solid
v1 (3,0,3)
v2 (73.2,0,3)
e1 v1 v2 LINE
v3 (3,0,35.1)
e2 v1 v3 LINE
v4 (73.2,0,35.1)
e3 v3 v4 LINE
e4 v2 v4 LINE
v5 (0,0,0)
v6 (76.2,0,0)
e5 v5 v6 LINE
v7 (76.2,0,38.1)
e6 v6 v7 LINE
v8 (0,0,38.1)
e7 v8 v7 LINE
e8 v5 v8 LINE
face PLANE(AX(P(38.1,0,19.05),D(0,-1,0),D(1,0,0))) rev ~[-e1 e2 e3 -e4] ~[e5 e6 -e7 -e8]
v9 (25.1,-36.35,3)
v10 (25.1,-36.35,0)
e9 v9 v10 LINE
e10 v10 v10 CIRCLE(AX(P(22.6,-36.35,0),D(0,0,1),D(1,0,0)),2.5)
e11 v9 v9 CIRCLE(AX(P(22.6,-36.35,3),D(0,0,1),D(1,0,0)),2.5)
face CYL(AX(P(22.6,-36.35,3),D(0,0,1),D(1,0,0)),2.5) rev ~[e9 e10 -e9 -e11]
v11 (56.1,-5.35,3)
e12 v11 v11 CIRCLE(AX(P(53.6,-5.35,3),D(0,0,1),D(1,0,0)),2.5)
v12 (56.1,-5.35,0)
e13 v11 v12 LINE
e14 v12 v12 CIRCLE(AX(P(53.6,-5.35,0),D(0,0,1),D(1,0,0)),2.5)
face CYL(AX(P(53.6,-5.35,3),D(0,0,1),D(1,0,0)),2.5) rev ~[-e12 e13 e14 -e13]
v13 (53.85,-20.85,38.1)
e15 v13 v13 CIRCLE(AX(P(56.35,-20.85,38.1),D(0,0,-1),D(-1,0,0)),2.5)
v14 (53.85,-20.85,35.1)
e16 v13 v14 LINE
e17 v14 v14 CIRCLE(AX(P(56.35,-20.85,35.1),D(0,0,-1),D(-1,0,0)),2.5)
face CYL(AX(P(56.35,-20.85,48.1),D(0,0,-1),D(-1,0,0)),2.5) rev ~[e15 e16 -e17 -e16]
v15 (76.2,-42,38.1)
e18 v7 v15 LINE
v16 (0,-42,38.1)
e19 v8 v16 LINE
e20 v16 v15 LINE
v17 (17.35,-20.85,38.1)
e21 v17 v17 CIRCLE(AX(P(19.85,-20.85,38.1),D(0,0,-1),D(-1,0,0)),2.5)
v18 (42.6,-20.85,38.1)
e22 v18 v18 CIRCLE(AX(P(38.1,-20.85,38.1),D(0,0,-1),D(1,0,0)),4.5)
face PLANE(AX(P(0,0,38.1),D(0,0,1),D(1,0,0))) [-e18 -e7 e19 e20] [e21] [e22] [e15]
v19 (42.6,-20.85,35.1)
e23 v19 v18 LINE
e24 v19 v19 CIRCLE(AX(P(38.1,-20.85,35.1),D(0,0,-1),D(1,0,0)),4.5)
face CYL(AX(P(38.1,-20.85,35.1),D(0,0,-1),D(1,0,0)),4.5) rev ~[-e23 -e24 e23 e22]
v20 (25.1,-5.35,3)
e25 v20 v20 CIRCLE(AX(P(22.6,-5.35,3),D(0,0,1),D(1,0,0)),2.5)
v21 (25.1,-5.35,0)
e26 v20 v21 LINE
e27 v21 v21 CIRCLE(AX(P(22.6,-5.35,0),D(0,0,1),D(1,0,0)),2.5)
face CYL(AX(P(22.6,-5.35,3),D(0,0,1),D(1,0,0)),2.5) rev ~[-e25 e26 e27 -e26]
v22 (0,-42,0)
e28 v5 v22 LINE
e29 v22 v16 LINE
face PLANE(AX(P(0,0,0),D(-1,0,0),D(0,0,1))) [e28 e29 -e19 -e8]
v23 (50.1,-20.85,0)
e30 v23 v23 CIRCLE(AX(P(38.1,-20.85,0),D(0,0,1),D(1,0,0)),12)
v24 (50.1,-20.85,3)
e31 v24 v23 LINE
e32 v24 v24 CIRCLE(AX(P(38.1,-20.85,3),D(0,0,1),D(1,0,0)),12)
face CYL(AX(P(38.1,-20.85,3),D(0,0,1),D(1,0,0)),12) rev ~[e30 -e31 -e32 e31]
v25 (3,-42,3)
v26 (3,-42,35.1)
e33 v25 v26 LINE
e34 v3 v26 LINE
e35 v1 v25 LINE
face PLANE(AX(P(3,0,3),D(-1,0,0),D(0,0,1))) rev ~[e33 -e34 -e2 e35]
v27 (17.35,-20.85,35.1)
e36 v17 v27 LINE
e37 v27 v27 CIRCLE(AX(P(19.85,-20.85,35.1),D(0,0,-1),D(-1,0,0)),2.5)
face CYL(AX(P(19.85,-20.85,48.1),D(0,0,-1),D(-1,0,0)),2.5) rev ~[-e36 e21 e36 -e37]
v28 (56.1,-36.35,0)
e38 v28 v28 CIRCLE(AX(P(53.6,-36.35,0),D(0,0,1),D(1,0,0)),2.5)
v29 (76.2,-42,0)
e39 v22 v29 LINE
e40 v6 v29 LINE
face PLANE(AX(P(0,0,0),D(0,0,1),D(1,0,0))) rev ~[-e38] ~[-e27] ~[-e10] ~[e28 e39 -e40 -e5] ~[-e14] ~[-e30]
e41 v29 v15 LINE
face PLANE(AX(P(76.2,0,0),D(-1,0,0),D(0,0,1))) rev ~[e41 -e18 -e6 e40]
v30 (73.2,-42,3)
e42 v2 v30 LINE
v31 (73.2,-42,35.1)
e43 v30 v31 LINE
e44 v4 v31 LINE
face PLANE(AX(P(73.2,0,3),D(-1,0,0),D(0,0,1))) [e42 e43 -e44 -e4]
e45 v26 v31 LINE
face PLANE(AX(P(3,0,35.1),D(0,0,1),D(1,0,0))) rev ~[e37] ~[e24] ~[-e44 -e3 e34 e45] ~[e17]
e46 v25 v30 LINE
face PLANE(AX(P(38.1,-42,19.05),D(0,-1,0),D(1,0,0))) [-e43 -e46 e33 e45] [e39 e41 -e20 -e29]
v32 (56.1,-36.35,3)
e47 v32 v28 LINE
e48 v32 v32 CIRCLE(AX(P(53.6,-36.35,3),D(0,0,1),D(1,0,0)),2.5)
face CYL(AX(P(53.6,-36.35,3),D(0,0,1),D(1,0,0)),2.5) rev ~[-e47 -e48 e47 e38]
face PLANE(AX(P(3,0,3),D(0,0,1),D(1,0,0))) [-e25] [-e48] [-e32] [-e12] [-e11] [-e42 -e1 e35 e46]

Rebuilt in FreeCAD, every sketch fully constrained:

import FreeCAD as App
import Part
import Sketcher
Q = App.Units.Quantity


def add_polygon(sketch, points):
    """Adds a closed chain of lines whose ends are joined by coincident constraints."""
    first, n = sketch.GeometryCount, len(points)
    for a, b in zip(points, points[1:] + points[:1]):
        sketch.addGeometry(Part.LineSegment(App.Vector(*a, 0), App.Vector(*b, 0)), False)
    for i in range(n):
        sketch.addConstraint(Sketcher.Constraint("Coincident", first + i, 2, first + (i + 1) % n, 1))

doc = App.newDocument("Part")
body = doc.addObject("PartDesign::Body", "Body")

sketch1 = body.newObject("Sketcher::SketchObject", "Sketch")
sketch1.AttachmentSupport = (doc.getObject("XZ_Plane"), [""])
sketch1.MapMode = "FlatFace"
add_polygon(sketch1, [(0, 38), (0, 0), (76, 0), (76, 38)])
add_polygon(sketch1, [(73, 3), (3, 3), (3, 35), (73, 35)])
sketch1.addConstraint([
    Sketcher.Constraint("Vertical", 0),
    Sketcher.Constraint("Horizontal", 1),
    Sketcher.Constraint("Vertical", 2),
    Sketcher.Constraint("Horizontal", 3),
    Sketcher.Constraint("Horizontal", 4),
    Sketcher.Constraint("Vertical", 5),
    Sketcher.Constraint("Horizontal", 6),
    Sketcher.Constraint("Vertical", 7),
    Sketcher.Constraint("Coincident", 0, 2, -1, 1),
    Sketcher.Constraint("DistanceX", 1, 1, 1, 2, Q("76.2 mm")),
    Sketcher.Constraint("DistanceX", 4, 2, 4, 1, Q("70.2 mm")),
    Sketcher.Constraint("DistanceY", 0, 2, 0, 1, Q("38.1 mm")),
    Sketcher.Constraint("DistanceY", 5, 1, 5, 2, Q("32.1 mm")),
    Sketcher.Constraint("DistanceX", -1, 1, 4, 2, Q("3 mm")),
    Sketcher.Constraint("DistanceY", -1, 1, 4, 2, Q("3 mm")),
])
pad1 = body.newObject("PartDesign::Pad", "Pad")
pad1.Profile = sketch1
pad1.Length = 42

sketch2 = body.newObject("Sketcher::SketchObject", "Sketch001")
sketch2.AttachmentSupport = (doc.getObject("XY_Plane"), [""])
sketch2.MapMode = "FlatFace"
sketch2.AttachmentOffset = App.Placement(App.Vector(0, 0, 3), App.Rotation())
sketch2.addGeometry([
    Part.Circle(App.Vector(53.6, -5.3, 0), App.Vector(0, 0, 1), 2.5),
    Part.Circle(App.Vector(53.6, -36.4, 0), App.Vector(0, 0, 1), 2.5),
    Part.Circle(App.Vector(22.6, -36.4, 0), App.Vector(0, 0, 1), 2.5),
    Part.Circle(App.Vector(22.6, -5.3, 0), App.Vector(0, 0, 1), 2.5),
    Part.Circle(App.Vector(38.1, -20.9, 0), App.Vector(0, 0, 1), 12),
], False)
sketch2.addConstraint([
    Sketcher.Constraint("Equal", 0, 1),
    Sketcher.Constraint("Equal", 1, 2),
    Sketcher.Constraint("Equal", 2, 3),
    Sketcher.Constraint("Horizontal", 1, 3, 2, 3),
    Sketcher.Constraint("Horizontal", 0, 3, 3, 3),
    Sketcher.Constraint("Vertical", 0, 3, 1, 3),
    Sketcher.Constraint("Vertical", 2, 3, 3, 3),
    Sketcher.Constraint("Diameter", 0, Q("5 mm")),
    Sketcher.Constraint("Diameter", 4, Q("24 mm")),
    Sketcher.Constraint("DistanceY", 1, 3, 0, 3, Q("31 mm")),
    Sketcher.Constraint("DistanceX", 2, 3, 1, 3, Q("31 mm")),
    Sketcher.Constraint("DistanceX", -1, 1, 0, 3, Q("53.6 mm")),
    Sketcher.Constraint("DistanceX", -1, 1, 4, 3, Q("38.1 mm")),
    Sketcher.Constraint("DistanceY", 1, 3, 4, 3, Q("15.5 mm")),
    Sketcher.Constraint("DistanceY", 0, 3, -1, 1, Q("5.35 mm")),
])
pocket1 = body.newObject("PartDesign::Pocket", "Pocket")
pocket1.Profile = sketch2
pocket1.Length = 5

sketch3 = body.newObject("Sketcher::SketchObject", "Sketch002")
sketch3.AttachmentSupport = (doc.getObject("XY_Plane"), [""])
sketch3.MapMode = "FlatFace"
sketch3.AttachmentOffset = App.Placement(App.Vector(0, 0, 35.1), App.Rotation())
sketch3.addGeometry(Part.Circle(App.Vector(38.1, -20.9, 0), App.Vector(0, 0, 1), 4.5), False)
sketch3.addConstraint([
    Sketcher.Constraint("Diameter", 0, Q("9 mm")),
    Sketcher.Constraint("DistanceX", -1, 1, 0, 3, Q("38.1 mm")),
    Sketcher.Constraint("DistanceY", 0, 3, -1, 1, Q("20.85 mm")),
])
pocket2 = body.newObject("PartDesign::Pocket", "Pocket001")
pocket2.Profile = sketch3
pocket2.Length = 5
pocket2.Reversed = True

sketch4 = body.newObject("Sketcher::SketchObject", "Sketch003")
sketch4.AttachmentSupport = (doc.getObject("XY_Plane"), [""])
sketch4.MapMode = "FlatFace"
sketch4.AttachmentOffset = App.Placement(App.Vector(0, 0, 38.1), App.Rotation())
sketch4.addGeometry([
    Part.Circle(App.Vector(19.9, -20.9, 0), App.Vector(0, 0, 1), 2.5),
    Part.Circle(App.Vector(56.4, -20.9, 0), App.Vector(0, 0, 1), 2.5),
], False)
sketch4.addConstraint([
    Sketcher.Constraint("Equal", 0, 1),
    Sketcher.Constraint("Horizontal", 0, 3, 1, 3),
    Sketcher.Constraint("Diameter", 0, Q("5 mm")),
    Sketcher.Constraint("DistanceX", 0, 3, 1, 3, Q("36.5 mm")),
    Sketcher.Constraint("DistanceX", -1, 1, 0, 3, Q("19.85 mm")),
    Sketcher.Constraint("DistanceY", 0, 3, -1, 1, Q("20.85 mm")),
])
doc.recompute()
hole = body.newObject("PartDesign::Hole", "Hole")
hole.Profile = sketch4
hole.ThreadType = "None"
hole.Diameter = 5
hole.DepthType = "Dimension"
hole.Depth = 10
hole.DrillPoint = "Flat"

doc.recompute()
